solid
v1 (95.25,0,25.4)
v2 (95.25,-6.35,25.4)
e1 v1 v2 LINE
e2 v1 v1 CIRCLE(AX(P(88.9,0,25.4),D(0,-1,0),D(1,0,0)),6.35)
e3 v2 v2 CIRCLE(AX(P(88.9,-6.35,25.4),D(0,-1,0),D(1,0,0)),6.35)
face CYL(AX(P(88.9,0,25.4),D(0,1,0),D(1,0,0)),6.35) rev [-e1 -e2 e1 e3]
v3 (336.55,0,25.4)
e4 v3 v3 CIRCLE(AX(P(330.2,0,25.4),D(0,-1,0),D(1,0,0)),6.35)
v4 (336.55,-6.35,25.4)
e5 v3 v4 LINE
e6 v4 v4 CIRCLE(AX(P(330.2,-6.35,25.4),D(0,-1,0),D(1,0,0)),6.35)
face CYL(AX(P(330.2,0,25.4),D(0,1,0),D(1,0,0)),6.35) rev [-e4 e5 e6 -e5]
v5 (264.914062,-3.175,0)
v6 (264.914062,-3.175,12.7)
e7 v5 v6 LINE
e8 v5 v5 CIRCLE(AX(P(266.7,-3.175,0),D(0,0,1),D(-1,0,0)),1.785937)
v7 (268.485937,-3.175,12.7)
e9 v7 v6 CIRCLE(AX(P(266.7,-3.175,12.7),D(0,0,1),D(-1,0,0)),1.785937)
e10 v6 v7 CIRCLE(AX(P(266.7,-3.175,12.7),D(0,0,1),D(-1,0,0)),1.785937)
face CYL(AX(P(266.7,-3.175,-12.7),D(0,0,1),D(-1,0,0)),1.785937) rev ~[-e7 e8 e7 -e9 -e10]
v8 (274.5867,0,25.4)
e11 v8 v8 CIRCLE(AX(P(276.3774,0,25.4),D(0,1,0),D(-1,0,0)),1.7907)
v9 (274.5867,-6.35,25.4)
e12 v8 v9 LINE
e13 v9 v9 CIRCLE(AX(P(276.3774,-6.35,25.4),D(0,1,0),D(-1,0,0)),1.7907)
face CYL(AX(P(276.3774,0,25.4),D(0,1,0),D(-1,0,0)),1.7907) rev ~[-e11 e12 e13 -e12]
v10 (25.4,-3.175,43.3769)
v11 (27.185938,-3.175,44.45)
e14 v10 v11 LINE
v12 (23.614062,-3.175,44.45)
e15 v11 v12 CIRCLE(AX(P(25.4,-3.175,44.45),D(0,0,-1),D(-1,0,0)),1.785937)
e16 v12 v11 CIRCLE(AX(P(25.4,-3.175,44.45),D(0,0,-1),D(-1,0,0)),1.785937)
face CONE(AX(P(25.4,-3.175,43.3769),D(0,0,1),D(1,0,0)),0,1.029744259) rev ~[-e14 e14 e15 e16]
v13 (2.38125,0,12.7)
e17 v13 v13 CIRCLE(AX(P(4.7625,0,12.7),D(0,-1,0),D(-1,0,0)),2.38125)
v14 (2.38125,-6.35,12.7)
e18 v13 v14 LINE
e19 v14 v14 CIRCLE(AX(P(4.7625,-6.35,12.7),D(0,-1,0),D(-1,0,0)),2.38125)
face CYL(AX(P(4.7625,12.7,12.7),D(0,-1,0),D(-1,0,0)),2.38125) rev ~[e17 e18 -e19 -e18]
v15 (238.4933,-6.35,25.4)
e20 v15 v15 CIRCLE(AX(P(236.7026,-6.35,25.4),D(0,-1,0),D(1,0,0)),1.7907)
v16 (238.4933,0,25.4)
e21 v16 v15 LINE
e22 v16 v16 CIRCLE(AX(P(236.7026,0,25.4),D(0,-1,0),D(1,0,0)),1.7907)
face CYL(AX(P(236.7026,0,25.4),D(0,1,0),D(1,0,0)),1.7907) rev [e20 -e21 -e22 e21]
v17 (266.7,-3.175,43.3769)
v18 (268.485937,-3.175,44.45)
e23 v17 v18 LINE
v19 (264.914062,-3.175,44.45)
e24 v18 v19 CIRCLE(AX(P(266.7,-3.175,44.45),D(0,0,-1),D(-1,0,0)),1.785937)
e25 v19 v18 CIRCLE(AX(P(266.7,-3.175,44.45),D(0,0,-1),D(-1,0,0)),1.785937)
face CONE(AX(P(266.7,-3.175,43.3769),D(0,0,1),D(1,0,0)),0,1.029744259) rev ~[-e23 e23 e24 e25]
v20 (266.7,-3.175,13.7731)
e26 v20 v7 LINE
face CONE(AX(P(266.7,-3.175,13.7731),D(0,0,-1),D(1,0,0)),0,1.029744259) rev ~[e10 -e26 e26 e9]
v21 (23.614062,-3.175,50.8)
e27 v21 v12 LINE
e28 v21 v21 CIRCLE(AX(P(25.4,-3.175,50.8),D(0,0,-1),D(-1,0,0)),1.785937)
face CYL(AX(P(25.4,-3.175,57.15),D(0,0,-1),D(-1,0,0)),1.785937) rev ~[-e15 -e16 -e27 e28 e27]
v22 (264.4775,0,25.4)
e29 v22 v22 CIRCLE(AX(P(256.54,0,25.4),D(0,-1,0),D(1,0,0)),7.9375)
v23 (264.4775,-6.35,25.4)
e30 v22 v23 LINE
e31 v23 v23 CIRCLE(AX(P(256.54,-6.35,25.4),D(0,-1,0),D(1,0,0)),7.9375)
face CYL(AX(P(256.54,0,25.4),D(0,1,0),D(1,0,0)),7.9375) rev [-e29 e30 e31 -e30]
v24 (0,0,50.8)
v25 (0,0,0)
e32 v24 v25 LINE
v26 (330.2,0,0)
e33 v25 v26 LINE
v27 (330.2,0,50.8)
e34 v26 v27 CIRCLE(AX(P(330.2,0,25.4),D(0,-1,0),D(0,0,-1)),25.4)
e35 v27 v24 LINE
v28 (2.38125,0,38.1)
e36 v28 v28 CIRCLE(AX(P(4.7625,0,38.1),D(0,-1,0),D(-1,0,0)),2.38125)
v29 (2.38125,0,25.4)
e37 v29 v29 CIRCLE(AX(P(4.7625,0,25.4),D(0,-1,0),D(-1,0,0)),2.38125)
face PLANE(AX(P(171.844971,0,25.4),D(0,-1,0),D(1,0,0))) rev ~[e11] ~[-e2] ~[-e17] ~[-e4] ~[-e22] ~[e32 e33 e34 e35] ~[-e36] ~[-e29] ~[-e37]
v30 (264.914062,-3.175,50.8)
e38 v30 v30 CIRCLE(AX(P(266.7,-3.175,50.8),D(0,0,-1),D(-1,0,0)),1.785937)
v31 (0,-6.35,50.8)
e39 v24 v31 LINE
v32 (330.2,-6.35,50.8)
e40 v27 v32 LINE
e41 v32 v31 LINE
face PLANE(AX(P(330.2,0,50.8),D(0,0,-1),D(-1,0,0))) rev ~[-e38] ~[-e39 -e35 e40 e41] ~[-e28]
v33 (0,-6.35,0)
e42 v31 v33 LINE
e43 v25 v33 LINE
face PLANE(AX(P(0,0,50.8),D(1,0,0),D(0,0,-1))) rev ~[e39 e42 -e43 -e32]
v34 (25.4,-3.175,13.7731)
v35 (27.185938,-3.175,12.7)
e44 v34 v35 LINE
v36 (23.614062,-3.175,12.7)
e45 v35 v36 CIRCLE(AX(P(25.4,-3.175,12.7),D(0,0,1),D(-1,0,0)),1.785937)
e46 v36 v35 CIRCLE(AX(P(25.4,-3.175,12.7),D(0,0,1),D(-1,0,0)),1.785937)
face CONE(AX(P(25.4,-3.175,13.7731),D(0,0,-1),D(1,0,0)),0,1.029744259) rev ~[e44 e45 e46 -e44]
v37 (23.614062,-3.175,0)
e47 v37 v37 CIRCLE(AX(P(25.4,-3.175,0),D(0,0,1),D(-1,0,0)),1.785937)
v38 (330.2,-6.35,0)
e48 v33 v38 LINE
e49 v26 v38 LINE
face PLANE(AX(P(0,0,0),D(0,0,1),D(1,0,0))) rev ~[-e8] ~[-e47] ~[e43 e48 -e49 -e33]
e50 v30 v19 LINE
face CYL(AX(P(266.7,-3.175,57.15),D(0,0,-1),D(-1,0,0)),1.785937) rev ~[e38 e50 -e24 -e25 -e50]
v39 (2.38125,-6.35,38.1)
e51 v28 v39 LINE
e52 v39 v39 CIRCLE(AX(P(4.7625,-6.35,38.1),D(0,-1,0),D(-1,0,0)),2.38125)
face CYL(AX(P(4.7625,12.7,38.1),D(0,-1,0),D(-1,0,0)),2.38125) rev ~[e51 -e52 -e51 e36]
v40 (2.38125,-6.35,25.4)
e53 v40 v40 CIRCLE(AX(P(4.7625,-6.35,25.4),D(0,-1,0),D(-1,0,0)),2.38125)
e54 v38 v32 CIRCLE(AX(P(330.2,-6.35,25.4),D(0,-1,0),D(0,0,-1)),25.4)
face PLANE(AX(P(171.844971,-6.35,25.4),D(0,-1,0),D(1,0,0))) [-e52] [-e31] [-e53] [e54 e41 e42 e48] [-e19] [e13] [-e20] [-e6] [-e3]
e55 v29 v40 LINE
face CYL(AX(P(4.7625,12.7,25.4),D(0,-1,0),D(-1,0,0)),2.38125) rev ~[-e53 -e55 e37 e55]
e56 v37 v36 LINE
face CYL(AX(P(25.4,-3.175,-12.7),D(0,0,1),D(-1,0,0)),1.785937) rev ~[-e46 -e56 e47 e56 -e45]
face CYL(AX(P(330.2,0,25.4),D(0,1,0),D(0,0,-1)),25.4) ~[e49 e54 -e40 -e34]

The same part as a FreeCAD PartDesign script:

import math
import FreeCAD as App
import Part
import Sketcher
Q = App.Units.Quantity

doc = App.newDocument("Part")
params = doc.addObject("Spreadsheet::Sheet", "Params")
for row, (alias, value) in enumerate([
    ("sketch1_radius", "1 in"),
    ("sketch1_diameter", "0.5 in"),
    ("sketch1_width", "13 in"),
    ("sketch1_diameter2", "0.141 in"),
    ("sketch1_diameter3", "0.625 in"),
    ("pad1_length", "0.25 in"),
    ("sketch2_diameter", "0.1875 in"),
    ("hole_diameter", "0.1875 in"),
    ("hole_depth", "0.5 in"),
    ("sketch3_diameter", "0.1875 in"),
    ("hole2_diameter", "0.1875 in"),
    ("hole2_depth", "0.5 in"),
    ("sketch4_diameter", "0.1875 in"),
    ("hole3_diameter", "0.1875 in"),
    ("hole3_depth", "0.5 in"),
    ("sketch5_diameter", "0.140625 in"),
    ("hole4_diameter", "0.140625 in"),
    ("hole4_depth", "0.5 in"),
    ("sketch6_diameter", "0.140625 in"),
    ("hole5_diameter", "0.140625 in"),
    ("hole5_depth", "0.5 in"),
    ("sketch7_diameter", "0.140625 in"),
    ("hole6_diameter", "0.140625 in"),
    ("hole6_depth", "0.25 in"),
    ("sketch8_diameter", "0.140625 in"),
    ("hole7_diameter", "0.140625 in"),
    ("hole7_depth", "0.25 in"),
], start=1):
    params.set(f"A{row}", alias)
    params.set(f"B{row}", "=" + value)
    params.setAlias(f"B{row}", alias)

body = doc.addObject("PartDesign::Body", "Body")

sketch1 = body.newObject("Sketcher::SketchObject", "Sketch")
sketch1.AttachmentSupport = (doc.getObject("XZ_Plane"), [""])
sketch1.MapMode = "FlatFace"
sketch1.addGeometry([
    Part.LineSegment(App.Vector(0, 50.8, 0), App.Vector(0, 0, 0)),
    Part.LineSegment(App.Vector(0, 0, 0), App.Vector(330.2, 0, 0)),
    Part.ArcOfCircle(Part.Circle(App.Vector(330.2, 25.4, 0), App.Vector(0, 0, 1), 25.4), math.radians(-90), math.radians(90)),
    Part.LineSegment(App.Vector(330.2, 50.8, 0), App.Vector(0, 50.8, 0)),
    Part.Circle(App.Vector(88.9, 25.4, 0), App.Vector(0, 0, 1), 6.3),
    Part.Circle(App.Vector(236.7, 25.4, 0), App.Vector(0, 0, 1), 1.8),
    Part.Circle(App.Vector(256.5, 25.4, 0), App.Vector(0, 0, 1), 7.9),
    Part.Circle(App.Vector(276.4, 25.4, 0), App.Vector(0, 0, 1), 1.8),
    Part.Circle(App.Vector(330.2, 25.4, 0), App.Vector(0, 0, 1), 6.3),
], False)
sketch1.addConstraint([
    Sketcher.Constraint("Coincident", 0, 2, 1, 1),
    Sketcher.Constraint("Tangent", 1, 2, 2, 1),
    Sketcher.Constraint("Tangent", 2, 2, 3, 1),
    Sketcher.Constraint("Coincident", 3, 2, 0, 1),
    Sketcher.Constraint("Vertical", 0),
    Sketcher.Constraint("Horizontal", 1),
    Sketcher.Constraint("Horizontal", 3),
    Sketcher.Constraint("Coincident", 0, 2, -1, 1),
    Sketcher.Constraint("Coincident", 8, 3, 2, 3),
    Sketcher.Constraint("Equal", 5, 7),
    Sketcher.Constraint("Equal", 4, 8),
    Sketcher.Constraint("Horizontal", 2, 3, 4, 3),
    Sketcher.Constraint("Horizontal", 4, 3, 5, 3),
    Sketcher.Constraint("Horizontal", 5, 3, 6, 3),
    Sketcher.Constraint("Horizontal", 6, 3, 7, 3),
    Sketcher.Constraint("Radius", 2, Q("1 in")),
    Sketcher.Constraint("Diameter", 4, Q("0.5 in")),
    Sketcher.Constraint("DistanceX", 1, 1, 1, 2, Q("13 in")),
    Sketcher.Constraint("Diameter", 5, Q("0.141 in")),
    Sketcher.Constraint("Diameter", 6, Q("0.625 in")),
    Sketcher.Constraint("DistanceX", -1, 1, 4, 3, Q("3.5 in")),
    Sketcher.Constraint("DistanceX", -1, 1, 6, 3, Q("10.1 in")),
    Sketcher.Constraint("DistanceX", -1, 1, 5, 3, Q("9.319 in")),
    Sketcher.Constraint("DistanceX", -1, 1, 7, 3, Q("10.881 in")),
])
sketch1.setExpression("Constraints[15]", "Params.sketch1_radius")
sketch1.setExpression("Constraints[16]", "Params.sketch1_diameter")
sketch1.setExpression("Constraints[17]", "Params.sketch1_width")
sketch1.setExpression("Constraints[18]", "Params.sketch1_diameter2")
sketch1.setExpression("Constraints[19]", "Params.sketch1_diameter3")
pad1 = body.newObject("PartDesign::Pad", "Pad")
pad1.Profile = sketch1
pad1.setExpression("Length", "Params.pad1_length")

sketch2 = body.newObject("Sketcher::SketchObject", "Sketch001")
sketch2.AttachmentSupport = (doc.getObject("XZ_Plane"), [""])
sketch2.MapMode = "FlatFace"
sketch2.addGeometry(Part.Circle(App.Vector(4.8, 25.4, 0), App.Vector(0, 0, 1), 2.4), False)
sketch2.addConstraint([
    Sketcher.Constraint("Diameter", 0, Q("0.1875 in")),
    Sketcher.Constraint("DistanceY", -1, 1, 0, 3, Q("1 in")),
    Sketcher.Constraint("DistanceX", -1, 1, 0, 3, Q("0.1875 in")),
])
sketch2.setExpression("Constraints[0]", "Params.sketch2_diameter")
doc.recompute()
hole = body.newObject("PartDesign::Hole", "Hole")
hole.Profile = sketch2
hole.ThreadType = "None"
hole.setExpression("Diameter", "Params.hole_diameter")
hole.DepthType = "Dimension"
hole.setExpression("Depth", "Params.hole_depth")
hole.DrillPoint = "Angled"
hole.DrillPointAngle = 118
hole.Reversed = True

sketch3 = body.newObject("Sketcher::SketchObject", "Sketch002")
sketch3.AttachmentSupport = (doc.getObject("XZ_Plane"), [""])
sketch3.MapMode = "FlatFace"
sketch3.addGeometry(Part.Circle(App.Vector(4.8, 12.7, 0), App.Vector(0, 0, 1), 2.4), False)
sketch3.addConstraint([
    Sketcher.Constraint("Diameter", 0, Q("0.1875 in")),
    Sketcher.Constraint("DistanceY", -1, 1, 0, 3, Q("0.5 in")),
    Sketcher.Constraint("DistanceX", -1, 1, 0, 3, Q("0.1875 in")),
])
sketch3.setExpression("Constraints[0]", "Params.sketch3_diameter")
doc.recompute()
hole2 = body.newObject("PartDesign::Hole", "Hole001")
hole2.Profile = sketch3
hole2.ThreadType = "None"
hole2.setExpression("Diameter", "Params.hole2_diameter")
hole2.DepthType = "Dimension"
hole2.setExpression("Depth", "Params.hole2_depth")
hole2.DrillPoint = "Angled"
hole2.DrillPointAngle = 118
hole2.Reversed = True

sketch4 = body.newObject("Sketcher::SketchObject", "Sketch003")
sketch4.AttachmentSupport = (doc.getObject("XZ_Plane"), [""])
sketch4.MapMode = "FlatFace"
sketch4.addGeometry(Part.Circle(App.Vector(4.8, 38.1, 0), App.Vector(0, 0, 1), 2.4), False)
sketch4.addConstraint([
    Sketcher.Constraint("Diameter", 0, Q("0.1875 in")),
    Sketcher.Constraint("DistanceY", -1, 1, 0, 3, Q("1.5 in")),
    Sketcher.Constraint("DistanceX", -1, 1, 0, 3, Q("0.1875 in")),
])
sketch4.setExpression("Constraints[0]", "Params.sketch4_diameter")
doc.recompute()
hole3 = body.newObject("PartDesign::Hole", "Hole002")
hole3.Profile = sketch4
hole3.ThreadType = "None"
hole3.setExpression("Diameter", "Params.hole3_diameter")
hole3.DepthType = "Dimension"
hole3.setExpression("Depth", "Params.hole3_depth")
hole3.DrillPoint = "Angled"
hole3.DrillPointAngle = 118
hole3.Reversed = True

sketch5 = body.newObject("Sketcher::SketchObject", "Sketch004")
sketch5.AttachmentSupport = (doc.getObject("XY_Plane"), [""])
sketch5.MapMode = "FlatFace"
sketch5.addGeometry(Part.Circle(App.Vector(266.7, -3.2, 0), App.Vector(0, 0, 1), 1.8), False)
sketch5.addConstraint([
    Sketcher.Constraint("Diameter", 0, Q("0.140625 in")),
    Sketcher.Constraint("DistanceX", -1, 1, 0, 3, Q("10.5 in")),
    Sketcher.Constraint("DistanceY", 0, 3, -1, 1, Q("0.125 in")),
])
sketch5.setExpression("Constraints[0]", "Params.sketch5_diameter")
doc.recompute()
hole4 = body.newObject("PartDesign::Hole", "Hole003")
hole4.Profile = sketch5
hole4.ThreadType = "None"
hole4.setExpression("Diameter", "Params.hole4_diameter")
hole4.DepthType = "Dimension"
hole4.setExpression("Depth", "Params.hole4_depth")
hole4.DrillPoint = "Angled"
hole4.DrillPointAngle = 118
hole4.Reversed = True

sketch6 = body.newObject("Sketcher::SketchObject", "Sketch005")
sketch6.AttachmentSupport = (doc.getObject("XY_Plane"), [""])
sketch6.MapMode = "FlatFace"
sketch6.addGeometry(Part.Circle(App.Vector(25.4, -3.2, 0), App.Vector(0, 0, 1), 1.8), False)
sketch6.addConstraint([
    Sketcher.Constraint("Diameter", 0, Q("0.140625 in")),
    Sketcher.Constraint("DistanceX", -1, 1, 0, 3, Q("1 in")),
    Sketcher.Constraint("DistanceY", 0, 3, -1, 1, Q("0.125 in")),
])
sketch6.setExpression("Constraints[0]", "Params.sketch6_diameter")
doc.recompute()
hole5 = body.newObject("PartDesign::Hole", "Hole004")
hole5.Profile = sketch6
hole5.ThreadType = "None"
hole5.setExpression("Diameter", "Params.hole5_diameter")
hole5.DepthType = "Dimension"
hole5.setExpression("Depth", "Params.hole5_depth")
hole5.DrillPoint = "Angled"
hole5.DrillPointAngle = 118
hole5.Reversed = True

sketch7 = body.newObject("Sketcher::SketchObject", "Sketch006")
sketch7.AttachmentSupport = (doc.getObject("XY_Plane"), [""])
sketch7.MapMode = "FlatFace"
sketch7.AttachmentOffset = App.Placement(App.Vector(0, 0, 2 * 25.4), App.Rotation())
sketch7.addGeometry(Part.Circle(App.Vector(266.7, -3.2, 0), App.Vector(0, 0, 1), 1.8), False)
sketch7.addConstraint([
    Sketcher.Constraint("Diameter", 0, Q("0.140625 in")),
    Sketcher.Constraint("DistanceX", -1, 1, 0, 3, Q("10.5 in")),
    Sketcher.Constraint("DistanceY", 0, 3, -1, 1, Q("0.125 in")),
])
sketch7.setExpression("Constraints[0]", "Params.sketch7_diameter")
doc.recompute()
hole6 = body.newObject("PartDesign::Hole", "Hole005")
hole6.Profile = sketch7
hole6.ThreadType = "None"
hole6.setExpression("Diameter", "Params.hole6_diameter")
hole6.DepthType = "Dimension"
hole6.setExpression("Depth", "Params.hole6_depth")
hole6.DrillPoint = "Angled"
hole6.DrillPointAngle = 118

sketch8 = body.newObject("Sketcher::SketchObject", "Sketch007")
sketch8.AttachmentSupport = (doc.getObject("XY_Plane"), [""])
sketch8.MapMode = "FlatFace"
sketch8.AttachmentOffset = App.Placement(App.Vector(0, 0, 2 * 25.4), App.Rotation())
sketch8.addGeometry(Part.Circle(App.Vector(25.4, -3.2, 0), App.Vector(0, 0, 1), 1.8), False)
sketch8.addConstraint([
    Sketcher.Constraint("Diameter", 0, Q("0.140625 in")),
    Sketcher.Constraint("DistanceX", -1, 1, 0, 3, Q("1 in")),
    Sketcher.Constraint("DistanceY", 0, 3, -1, 1, Q("0.125 in")),
])
sketch8.setExpression("Constraints[0]", "Params.sketch8_diameter")
doc.recompute()
hole7 = body.newObject("PartDesign::Hole", "Hole006")
hole7.Profile = sketch8
hole7.ThreadType = "None"
hole7.setExpression("Diameter", "Params.hole7_diameter")
hole7.DepthType = "Dimension"
hole7.setExpression("Depth", "Params.hole7_depth")
hole7.DrillPoint = "Angled"
hole7.DrillPointAngle = 118

doc.recompute()
